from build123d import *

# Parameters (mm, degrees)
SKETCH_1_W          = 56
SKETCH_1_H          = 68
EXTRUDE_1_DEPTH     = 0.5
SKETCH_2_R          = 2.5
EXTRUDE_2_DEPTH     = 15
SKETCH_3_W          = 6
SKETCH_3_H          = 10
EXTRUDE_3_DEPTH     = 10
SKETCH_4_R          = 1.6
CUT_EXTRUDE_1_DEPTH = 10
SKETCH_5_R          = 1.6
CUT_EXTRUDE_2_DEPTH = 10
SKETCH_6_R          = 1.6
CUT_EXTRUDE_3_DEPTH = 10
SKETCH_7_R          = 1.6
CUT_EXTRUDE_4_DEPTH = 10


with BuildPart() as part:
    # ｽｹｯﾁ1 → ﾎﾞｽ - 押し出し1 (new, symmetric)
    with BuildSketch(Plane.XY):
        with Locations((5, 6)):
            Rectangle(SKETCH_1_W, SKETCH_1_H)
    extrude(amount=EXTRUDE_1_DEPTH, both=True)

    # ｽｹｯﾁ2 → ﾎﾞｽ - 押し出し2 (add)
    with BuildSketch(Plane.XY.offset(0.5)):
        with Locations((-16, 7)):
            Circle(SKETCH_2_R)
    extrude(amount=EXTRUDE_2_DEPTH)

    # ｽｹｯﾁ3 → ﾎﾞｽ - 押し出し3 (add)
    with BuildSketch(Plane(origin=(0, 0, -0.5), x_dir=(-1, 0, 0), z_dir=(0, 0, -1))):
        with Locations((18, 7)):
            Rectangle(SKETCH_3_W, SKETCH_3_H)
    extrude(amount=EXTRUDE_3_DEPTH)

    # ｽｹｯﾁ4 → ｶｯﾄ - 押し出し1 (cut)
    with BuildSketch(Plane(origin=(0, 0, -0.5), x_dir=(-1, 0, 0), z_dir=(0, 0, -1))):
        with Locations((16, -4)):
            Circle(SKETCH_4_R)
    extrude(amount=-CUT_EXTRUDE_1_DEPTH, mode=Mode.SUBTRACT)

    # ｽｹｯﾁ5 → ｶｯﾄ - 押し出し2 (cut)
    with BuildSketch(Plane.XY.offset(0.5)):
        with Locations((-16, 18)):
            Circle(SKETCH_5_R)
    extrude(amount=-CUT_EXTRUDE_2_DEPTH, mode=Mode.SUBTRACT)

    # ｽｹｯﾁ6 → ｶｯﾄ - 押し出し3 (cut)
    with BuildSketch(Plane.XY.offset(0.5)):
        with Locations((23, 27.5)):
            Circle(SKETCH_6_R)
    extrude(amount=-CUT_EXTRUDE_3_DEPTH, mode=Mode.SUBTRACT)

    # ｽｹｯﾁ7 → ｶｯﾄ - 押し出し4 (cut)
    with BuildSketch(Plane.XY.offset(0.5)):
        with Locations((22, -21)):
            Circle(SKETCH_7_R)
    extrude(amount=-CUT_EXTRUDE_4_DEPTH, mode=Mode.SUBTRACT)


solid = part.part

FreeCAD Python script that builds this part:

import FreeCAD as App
import Part
import Sketcher
from FreeCAD import Vector
Q = App.Units.Quantity


def add_polygon(sketch, points):
    """Adds a closed chain of lines whose ends are joined by coincident constraints."""
    first, n = sketch.GeometryCount, len(points)
    for a, b in zip(points, points[1:] + points[:1]):
        sketch.addGeometry(Part.LineSegment(App.Vector(*a, 0), App.Vector(*b, 0)), False)
    for i in range(n):
        sketch.addConstraint(Sketcher.Constraint("Coincident", first + i, 2, first + (i + 1) % n, 1))

doc = App.newDocument("Part")
body = doc.addObject("PartDesign::Body", "Body")

sketch1 = doc.addObject("Sketcher::SketchObject", "Sketch")
body.addObject(sketch1)
sketch1.AttachmentSupport = (doc.XY_Plane, [""])
sketch1.MapMode = "FlatFace"
add_polygon(sketch1, [(-23, 40), (-23, -28), (33, -28), (33, 40)])
sketch1.addConstraint([
    Sketcher.Constraint("Vertical", 0),
    Sketcher.Constraint("Horizontal", 1),
    Sketcher.Constraint("Vertical", 2),
    Sketcher.Constraint("Horizontal", 3),
    Sketcher.Constraint("DistanceX", 1, 1, 1, 2, Q("56 mm")),
    Sketcher.Constraint("DistanceY", 0, 2, 0, 1, Q("68 mm")),
    Sketcher.Constraint("DistanceX", 0, 2, -1, 1, Q("23 mm")),
    Sketcher.Constraint("DistanceY", 0, 2, -1, 1, Q("28 mm")),
])
pad1 = doc.addObject("PartDesign::Pad", "Pad")
body.addObject(pad1)
pad1.Profile = sketch1
pad1.Length = 1
pad1.Midplane = True

sketch2 = doc.addObject("Sketcher::SketchObject", "Sketch001")
body.addObject(sketch2)
sketch2.AttachmentSupport = (doc.XY_Plane, [""])
sketch2.MapMode = "FlatFace"
sketch2.AttachmentOffset = App.Placement(Vector(0, 0, 0.5), App.Rotation())
sketch2.addGeometry(Part.Circle(Vector(-16, 7, 0), Vector(0, 0, 1), 2.5), False)
sketch2.addConstraint([
    Sketcher.Constraint("Diameter", 0, Q("5 mm")),
    Sketcher.Constraint("DistanceX", 0, 3, -1, 1, Q("16 mm")),
    Sketcher.Constraint("DistanceY", -1, 1, 0, 3, Q("7 mm")),
])
pad2 = doc.addObject("PartDesign::Pad", "Pad001")
body.addObject(pad2)
pad2.Profile = sketch2
pad2.Length = 15

sketch3 = doc.addObject("Sketcher::SketchObject", "Sketch002")
body.addObject(sketch3)
sketch3.AttachmentSupport = (doc.XY_Plane, [""])
sketch3.MapMode = "FlatFace"
sketch3.AttachmentOffset = App.Placement(Vector(0, 0, -0.5), App.Rotation())
add_polygon(sketch3, [(-15, 12), (-15, 2), (-21, 2), (-21, 12)])
sketch3.addConstraint([
    Sketcher.Constraint("Vertical", 0),
    Sketcher.Constraint("Horizontal", 1),
    Sketcher.Constraint("Vertical", 2),
    Sketcher.Constraint("Horizontal", 3),
    Sketcher.Constraint("DistanceX", 1, 2, 1, 1, Q("6 mm")),
    Sketcher.Constraint("DistanceY", 0, 2, 0, 1, Q("10 mm")),
    Sketcher.Constraint("DistanceX", 0, 2, -1, 1, Q("15 mm")),
    Sketcher.Constraint("DistanceY", -1, 1, 0, 2, Q("2 mm")),
])
pad3 = doc.addObject("PartDesign::Pad", "Pad002")
body.addObject(pad3)
pad3.Profile = sketch3
pad3.Length = 10
pad3.Reversed = True

sketch4 = doc.addObject("Sketcher::SketchObject", "Sketch003")
body.addObject(sketch4)
sketch4.AttachmentSupport = (doc.XY_Plane, [""])
sketch4.MapMode = "FlatFace"
sketch4.AttachmentOffset = App.Placement(Vector(0, 0, -0.5), App.Rotation())
sketch4.addGeometry(Part.Circle(Vector(-16, -4, 0), Vector(0, 0, 1), 1.6), False)
sketch4.addConstraint([
    Sketcher.Constraint("Diameter", 0, Q("3.2 mm")),
    Sketcher.Constraint("DistanceX", 0, 3, -1, 1, Q("16 mm")),
    Sketcher.Constraint("DistanceY", 0, 3, -1, 1, Q("4 mm")),
])
pocket1 = doc.addObject("PartDesign::Pocket", "Pocket")
body.addObject(pocket1)
pocket1.Profile = sketch4
pocket1.Length = 10
pocket1.Reversed = True

sketch5 = doc.addObject("Sketcher::SketchObject", "Sketch004")
body.addObject(sketch5)
sketch5.AttachmentSupport = (doc.XY_Plane, [""])
sketch5.MapMode = "FlatFace"
sketch5.AttachmentOffset = App.Placement(Vector(0, 0, 0.5), App.Rotation())
sketch5.addGeometry(Part.Circle(Vector(-16, 18, 0), Vector(0, 0, 1), 1.6), False)
sketch5.addConstraint([
    Sketcher.Constraint("Diameter", 0, Q("3.2 mm")),
    Sketcher.Constraint("DistanceX", 0, 3, -1, 1, Q("16 mm")),
    Sketcher.Constraint("DistanceY", -1, 1, 0, 3, Q("18 mm")),
])
pocket2 = doc.addObject("PartDesign::Pocket", "Pocket001")
body.addObject(pocket2)
pocket2.Profile = sketch5
pocket2.Length = 10

sketch6 = doc.addObject("Sketcher::SketchObject", "Sketch005")
body.addObject(sketch6)
sketch6.AttachmentSupport = (doc.XY_Plane, [""])
sketch6.MapMode = "FlatFace"
sketch6.AttachmentOffset = App.Placement(Vector(0, 0, 0.5), App.Rotation())
sketch6.addGeometry(Part.Circle(Vector(23, 27.5, 0), Vector(0, 0, 1), 1.6), False)
sketch6.addConstraint([
    Sketcher.Constraint("Diameter", 0, Q("3.2 mm")),
    Sketcher.Constraint("DistanceX", -1, 1, 0, 3, Q("23 mm")),
    Sketcher.Constraint("DistanceY", -1, 1, 0, 3, Q("27.5 mm")),
])
pocket3 = doc.addObject("PartDesign::Pocket", "Pocket002")
body.addObject(pocket3)
pocket3.Profile = sketch6
pocket3.Length = 10

sketch7 = doc.addObject("Sketcher::SketchObject", "Sketch006")
body.addObject(sketch7)
sketch7.AttachmentSupport = (doc.XY_Plane, [""])
sketch7.MapMode = "FlatFace"
sketch7.AttachmentOffset = App.Placement(Vector(0, 0, 0.5), App.Rotation())
sketch7.addGeometry(Part.Circle(Vector(22, -21, 0), Vector(0, 0, 1), 1.6), False)
sketch7.addConstraint([
    Sketcher.Constraint("Diameter", 0, Q("3.2 mm")),
    Sketcher.Constraint("DistanceX", -1, 1, 0, 3, Q("22 mm")),
    Sketcher.Constraint("DistanceY", 0, 3, -1, 1, Q("21 mm")),
])
pocket4 = doc.addObject("PartDesign::Pocket", "Pocket003")
body.addObject(pocket4)
pocket4.Profile = sketch7
pocket4.Length = 10

doc.recompute()
